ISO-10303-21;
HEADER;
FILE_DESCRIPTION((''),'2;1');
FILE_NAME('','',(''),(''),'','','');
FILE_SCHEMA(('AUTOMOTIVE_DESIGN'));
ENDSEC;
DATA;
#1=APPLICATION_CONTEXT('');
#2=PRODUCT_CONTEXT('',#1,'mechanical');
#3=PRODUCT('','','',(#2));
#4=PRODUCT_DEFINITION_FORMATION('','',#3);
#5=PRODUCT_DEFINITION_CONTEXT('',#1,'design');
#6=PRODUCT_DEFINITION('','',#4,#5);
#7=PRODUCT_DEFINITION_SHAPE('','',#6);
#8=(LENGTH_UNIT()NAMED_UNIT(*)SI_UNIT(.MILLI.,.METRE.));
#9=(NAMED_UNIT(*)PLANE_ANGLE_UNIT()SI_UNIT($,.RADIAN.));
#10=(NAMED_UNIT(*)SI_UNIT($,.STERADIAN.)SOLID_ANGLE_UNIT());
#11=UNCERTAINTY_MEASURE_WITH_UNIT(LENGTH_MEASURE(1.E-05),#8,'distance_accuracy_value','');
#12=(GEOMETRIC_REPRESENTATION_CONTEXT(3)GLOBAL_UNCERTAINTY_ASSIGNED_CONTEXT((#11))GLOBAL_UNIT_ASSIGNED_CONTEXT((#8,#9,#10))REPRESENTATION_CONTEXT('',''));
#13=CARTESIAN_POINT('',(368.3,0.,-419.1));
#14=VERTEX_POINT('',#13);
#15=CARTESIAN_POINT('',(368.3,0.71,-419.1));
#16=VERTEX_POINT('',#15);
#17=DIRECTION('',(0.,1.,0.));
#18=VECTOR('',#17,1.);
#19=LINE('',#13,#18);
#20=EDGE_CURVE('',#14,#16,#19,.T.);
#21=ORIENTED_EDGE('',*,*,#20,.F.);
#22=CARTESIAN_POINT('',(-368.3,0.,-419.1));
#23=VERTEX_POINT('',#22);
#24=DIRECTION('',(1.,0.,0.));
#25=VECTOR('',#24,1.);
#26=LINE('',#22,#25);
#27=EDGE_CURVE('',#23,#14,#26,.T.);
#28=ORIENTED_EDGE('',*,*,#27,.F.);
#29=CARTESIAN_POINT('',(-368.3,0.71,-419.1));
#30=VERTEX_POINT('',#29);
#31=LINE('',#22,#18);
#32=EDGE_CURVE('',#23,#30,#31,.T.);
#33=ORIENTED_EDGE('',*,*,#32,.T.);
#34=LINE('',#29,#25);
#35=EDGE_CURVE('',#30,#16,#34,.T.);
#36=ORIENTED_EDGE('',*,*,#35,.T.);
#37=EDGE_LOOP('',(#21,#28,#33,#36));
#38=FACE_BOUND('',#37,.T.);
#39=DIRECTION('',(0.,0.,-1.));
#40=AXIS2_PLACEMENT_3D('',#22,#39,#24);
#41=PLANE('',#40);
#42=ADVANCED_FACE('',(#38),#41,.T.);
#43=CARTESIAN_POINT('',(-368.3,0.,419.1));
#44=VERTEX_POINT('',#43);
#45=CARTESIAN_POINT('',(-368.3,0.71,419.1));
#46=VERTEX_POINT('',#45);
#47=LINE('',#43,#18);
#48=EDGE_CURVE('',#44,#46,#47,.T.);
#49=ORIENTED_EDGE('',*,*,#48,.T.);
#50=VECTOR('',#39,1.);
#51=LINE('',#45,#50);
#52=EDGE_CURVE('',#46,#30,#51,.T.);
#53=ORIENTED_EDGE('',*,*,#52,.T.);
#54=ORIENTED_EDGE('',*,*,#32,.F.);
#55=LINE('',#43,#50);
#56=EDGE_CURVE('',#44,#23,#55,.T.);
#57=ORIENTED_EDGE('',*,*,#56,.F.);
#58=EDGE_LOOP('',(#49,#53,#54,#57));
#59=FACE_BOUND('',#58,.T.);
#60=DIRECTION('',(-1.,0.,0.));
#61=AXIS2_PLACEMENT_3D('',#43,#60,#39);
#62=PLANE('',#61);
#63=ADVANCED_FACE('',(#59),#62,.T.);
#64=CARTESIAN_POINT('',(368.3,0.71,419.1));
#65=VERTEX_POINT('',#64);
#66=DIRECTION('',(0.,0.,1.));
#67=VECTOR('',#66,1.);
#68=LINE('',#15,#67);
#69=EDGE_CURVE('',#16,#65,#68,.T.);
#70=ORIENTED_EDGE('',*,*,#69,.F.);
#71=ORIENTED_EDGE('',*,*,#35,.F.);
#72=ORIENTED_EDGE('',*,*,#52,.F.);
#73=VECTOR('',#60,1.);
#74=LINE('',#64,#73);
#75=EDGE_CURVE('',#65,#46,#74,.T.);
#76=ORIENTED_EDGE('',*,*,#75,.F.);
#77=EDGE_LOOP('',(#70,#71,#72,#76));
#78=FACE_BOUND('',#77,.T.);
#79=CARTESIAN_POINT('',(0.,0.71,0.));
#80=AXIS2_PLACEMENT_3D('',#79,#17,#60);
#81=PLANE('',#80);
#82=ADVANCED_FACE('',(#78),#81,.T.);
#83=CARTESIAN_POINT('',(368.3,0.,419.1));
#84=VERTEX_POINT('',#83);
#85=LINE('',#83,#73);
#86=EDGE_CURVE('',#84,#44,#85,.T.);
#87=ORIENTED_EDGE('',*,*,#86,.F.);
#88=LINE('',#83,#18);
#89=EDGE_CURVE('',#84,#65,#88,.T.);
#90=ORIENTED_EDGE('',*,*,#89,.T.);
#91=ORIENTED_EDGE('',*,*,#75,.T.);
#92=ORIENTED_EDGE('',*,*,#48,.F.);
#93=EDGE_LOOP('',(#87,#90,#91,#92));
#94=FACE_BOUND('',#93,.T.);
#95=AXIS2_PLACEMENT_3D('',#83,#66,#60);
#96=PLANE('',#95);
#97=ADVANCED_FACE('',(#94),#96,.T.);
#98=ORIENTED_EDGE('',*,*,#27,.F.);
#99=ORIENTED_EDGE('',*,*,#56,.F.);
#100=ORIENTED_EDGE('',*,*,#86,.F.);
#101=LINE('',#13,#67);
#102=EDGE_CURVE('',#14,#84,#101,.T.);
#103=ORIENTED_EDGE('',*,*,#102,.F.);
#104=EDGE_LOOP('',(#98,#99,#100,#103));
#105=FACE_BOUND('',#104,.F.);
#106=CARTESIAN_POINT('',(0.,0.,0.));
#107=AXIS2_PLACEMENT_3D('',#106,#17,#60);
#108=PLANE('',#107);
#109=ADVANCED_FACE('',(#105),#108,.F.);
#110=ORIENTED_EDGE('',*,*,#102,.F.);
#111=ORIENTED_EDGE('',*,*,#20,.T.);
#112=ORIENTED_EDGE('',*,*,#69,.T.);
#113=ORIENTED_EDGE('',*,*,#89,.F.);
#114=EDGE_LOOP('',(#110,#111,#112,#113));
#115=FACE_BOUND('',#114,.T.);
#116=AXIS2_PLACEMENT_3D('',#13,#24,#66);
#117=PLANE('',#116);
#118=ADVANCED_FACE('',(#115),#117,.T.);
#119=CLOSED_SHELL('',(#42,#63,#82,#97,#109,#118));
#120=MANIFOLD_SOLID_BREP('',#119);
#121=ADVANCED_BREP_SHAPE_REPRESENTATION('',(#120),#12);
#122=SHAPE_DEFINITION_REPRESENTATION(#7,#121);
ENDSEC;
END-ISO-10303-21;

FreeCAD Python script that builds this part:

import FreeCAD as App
import Part
import Sketcher

V = App.Vector
Q = App.Units.Quantity


def add_polygon(sketch, points):
    """Adds a closed chain of lines whose ends are joined by coincident constraints."""
    first, n = sketch.GeometryCount, len(points)
    for a, b in zip(points, points[1:] + points[:1]):
        sketch.addGeometry(Part.LineSegment(App.Vector(*a, 0), App.Vector(*b, 0)), False)
    for i in range(n):
        sketch.addConstraint(Sketcher.Constraint("Coincident", first + i, 2, first + (i + 1) % n, 1))

doc = App.newDocument("Part")
body = doc.addObject("PartDesign::Body", "Body")

# Sketch on XZ plane
sketch1 = body.newObject("Sketcher::SketchObject", "Sketch")
sketch1.AttachmentSupport = (doc.getObject("XZ_Plane"), [""])
sketch1.MapMode = "FlatFace"
add_polygon(sketch1, [(-368, 419), (368, 419), (368, -419), (-368, -419)])  # lines 0-3
sketch1.addConstraint([
    Sketcher.Constraint("Horizontal", 0),
    Sketcher.Constraint("Vertical", 1),
    Sketcher.Constraint("Horizontal", 2),
    Sketcher.Constraint("Vertical", 3),
    Sketcher.Constraint("Symmetric", 0, 2, 2, 2, -1, 1),
    Sketcher.Constraint("DistanceX", 0, 1, 0, 2, Q("29 in")),
    Sketcher.Constraint("DistanceY", 1, 2, 1, 1, Q("33 in")),
])
pad1 = body.newObject("PartDesign::Pad", "Pad")
pad1.Profile = sketch1
pad1.Length = 0.71
pad1.Reversed = True

doc.recompute()
